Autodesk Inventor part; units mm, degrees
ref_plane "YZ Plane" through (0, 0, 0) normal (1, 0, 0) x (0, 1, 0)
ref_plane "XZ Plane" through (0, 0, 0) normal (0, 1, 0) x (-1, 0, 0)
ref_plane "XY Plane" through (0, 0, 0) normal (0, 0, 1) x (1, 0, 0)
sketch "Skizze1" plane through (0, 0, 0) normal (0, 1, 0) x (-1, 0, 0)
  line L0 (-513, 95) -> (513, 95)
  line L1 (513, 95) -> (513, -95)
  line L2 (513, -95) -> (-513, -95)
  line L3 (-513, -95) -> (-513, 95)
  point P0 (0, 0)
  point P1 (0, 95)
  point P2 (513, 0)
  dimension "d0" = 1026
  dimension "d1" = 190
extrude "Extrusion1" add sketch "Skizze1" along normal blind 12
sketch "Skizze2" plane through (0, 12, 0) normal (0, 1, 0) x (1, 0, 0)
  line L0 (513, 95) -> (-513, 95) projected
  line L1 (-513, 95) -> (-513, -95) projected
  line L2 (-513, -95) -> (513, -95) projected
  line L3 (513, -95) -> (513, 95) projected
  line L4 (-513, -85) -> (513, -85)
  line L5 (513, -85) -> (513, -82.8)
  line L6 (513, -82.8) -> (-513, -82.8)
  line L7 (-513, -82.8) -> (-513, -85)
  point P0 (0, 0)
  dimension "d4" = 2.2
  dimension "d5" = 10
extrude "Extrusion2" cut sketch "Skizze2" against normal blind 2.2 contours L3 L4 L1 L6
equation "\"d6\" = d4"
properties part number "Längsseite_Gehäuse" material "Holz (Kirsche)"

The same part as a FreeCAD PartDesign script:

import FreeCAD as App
import Part
import Sketcher
from FreeCAD import Vector

doc = App.newDocument("Part")
body = doc.addObject("PartDesign::Body", "Body")

# Sketch on XZ plane
sketch1 = body.newObject("Sketcher::SketchObject", "Sketch")
sketch1.AttachmentSupport = (doc.getObject("XZ_Plane"), [""])
sketch1.MapMode = "FlatFace"
sketch1.addGeometry([
    Part.LineSegment(Vector(-513, 95, 0), Vector(513, 95, 0)),
    Part.LineSegment(Vector(513, 95, 0), Vector(513, -95, 0)),
    Part.LineSegment(Vector(513, -95, 0), Vector(-513, -95, 0)),
    Part.LineSegment(Vector(-513, -95, 0), Vector(-513, 95, 0)),
], False)
sketch1.addConstraint([
    Sketcher.Constraint("Coincident", 0, 2, 1, 1),
    Sketcher.Constraint("Coincident", 1, 2, 2, 1),
    Sketcher.Constraint("Coincident", 2, 2, 3, 1),
    Sketcher.Constraint("Coincident", 3, 2, 0, 1),
    Sketcher.Constraint("Horizontal", 0),
    Sketcher.Constraint("Vertical", 1),
    Sketcher.Constraint("Horizontal", 2),
    Sketcher.Constraint("Vertical", 3),
    Sketcher.Constraint("Symmetric", 0, 2, 2, 2, -1, 1),
    Sketcher.Constraint("DistanceX", 0, 1, 0, 2, 1026.0),
    Sketcher.Constraint("DistanceY", 1, 2, 1, 1, 190.0),
])
pad1 = body.newObject("PartDesign::Pad", "Pad")
pad1.Profile = sketch1
pad1.Length = 12
pad1.Reversed = True

# Sketch on XZ plane
sketch2 = body.newObject("Sketcher::SketchObject", "Sketch001")
sketch2.AttachmentSupport = (doc.getObject("XZ_Plane"), [""])
sketch2.MapMode = "FlatFace"
sketch2.AttachmentOffset = App.Placement(Vector(0, 0, -12), App.Rotation())
sketch2.addGeometry([
    Part.LineSegment(Vector(513, 85, 0), Vector(513, 82.8, 0)),
    Part.LineSegment(Vector(513, 82.8, 0), Vector(-513, 82.8, 0)),
    Part.LineSegment(Vector(-513, 82.8, 0), Vector(-513, 85, 0)),
    Part.LineSegment(Vector(-513, 85, 0), Vector(513, 85, 0)),
], False)
sketch2.addConstraint([
    Sketcher.Constraint("Coincident", 0, 2, 1, 1),
    Sketcher.Constraint("Coincident", 1, 2, 2, 1),
    Sketcher.Constraint("Coincident", 2, 2, 3, 1),
    Sketcher.Constraint("Coincident", 3, 2, 0, 1),
    Sketcher.Constraint("Vertical", 0),
    Sketcher.Constraint("Horizontal", 1),
    Sketcher.Constraint("Vertical", 2),
    Sketcher.Constraint("Horizontal", 3),
    Sketcher.Constraint("DistanceY", 0, 2, 0, 1, 2.2),
    Sketcher.Constraint("DistanceX", 1, 2, 1, 1, 1026.0),
    Sketcher.Constraint("DistanceX", -1, 1, 0, 2, 513.0),
    Sketcher.Constraint("DistanceY", -1, 1, 2, 2, 85.0),
])
pocket1 = body.newObject("PartDesign::Pocket", "Pocket")
pocket1.Profile = sketch2
pocket1.Length = 2.2
pocket1.Reversed = True

doc.recompute()
